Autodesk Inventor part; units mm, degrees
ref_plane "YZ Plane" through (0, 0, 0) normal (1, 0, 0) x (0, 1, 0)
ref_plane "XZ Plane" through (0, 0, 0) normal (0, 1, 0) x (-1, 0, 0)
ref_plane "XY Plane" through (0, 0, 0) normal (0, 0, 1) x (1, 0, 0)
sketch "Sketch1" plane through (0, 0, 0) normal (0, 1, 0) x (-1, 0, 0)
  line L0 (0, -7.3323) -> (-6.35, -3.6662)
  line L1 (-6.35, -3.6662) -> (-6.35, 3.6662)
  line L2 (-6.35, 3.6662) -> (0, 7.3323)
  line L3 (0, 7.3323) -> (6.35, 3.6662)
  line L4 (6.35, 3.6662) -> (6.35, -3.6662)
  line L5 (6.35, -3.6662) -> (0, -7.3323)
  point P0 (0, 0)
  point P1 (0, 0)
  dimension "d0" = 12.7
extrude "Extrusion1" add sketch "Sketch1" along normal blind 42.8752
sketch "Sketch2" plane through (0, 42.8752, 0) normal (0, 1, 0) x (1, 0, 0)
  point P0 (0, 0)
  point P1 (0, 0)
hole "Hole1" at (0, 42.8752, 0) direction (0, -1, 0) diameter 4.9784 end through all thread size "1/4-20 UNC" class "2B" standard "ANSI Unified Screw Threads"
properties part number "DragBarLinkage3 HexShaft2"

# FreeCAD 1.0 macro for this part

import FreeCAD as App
import Part
import Sketcher
Q = App.Units.Quantity


def add_polygon(sketch, points):
    """Adds a closed chain of lines whose ends are joined by coincident constraints."""
    first, n = sketch.GeometryCount, len(points)
    for a, b in zip(points, points[1:] + points[:1]):
        sketch.addGeometry(Part.LineSegment(App.Vector(*a, 0), App.Vector(*b, 0)), False)
    for i in range(n):
        sketch.addConstraint(Sketcher.Constraint("Coincident", first + i, 2, first + (i + 1) % n, 1))

doc = App.newDocument("Part")
body = doc.addObject("PartDesign::Body", "Body")

# Sketch on XZ plane
sketch1 = body.newObject("Sketcher::SketchObject", "Sketch")
sketch1.AttachmentSupport = (doc.getObject("XZ_Plane"), [""])
sketch1.MapMode = "FlatFace"
add_polygon(sketch1, [(6.35, -3.6662), (0, -7.3323), (-6.35, -3.6662), (-6.35, 3.6662), (0, 7.3323), (6.35, 3.6662)])  # lines 0-5
sketch1.addConstraint([
    Sketcher.Constraint("Vertical", 2),
    Sketcher.Constraint("Vertical", 5),
    Sketcher.Constraint("Symmetric", 0, 2, 3, 2, -1, 1),
    Sketcher.Constraint("Symmetric", 1, 2, 4, 2, -1, 1),
    Sketcher.Constraint("PointOnObject", 0, 2, -2),
    Sketcher.Constraint("Parallel", 0, 3),
    Sketcher.Constraint("Horizontal", 2, 2, 4, 2),
    Sketcher.Constraint("DistanceX", 2, 2, 4, 2, Q("0.5 in")),
    Sketcher.Constraint("Angle", 0, Q("-150.0005 deg")),
    Sketcher.Constraint("DistanceY", 0, 2, 2, 2, Q("0.433 in")),
])
pad1 = body.newObject("PartDesign::Pad", "Pad")
pad1.Profile = sketch1
pad1.Length = Q("1.688 in")
pad1.Reversed = True

# Sketch on XZ plane
sketch2 = body.newObject("Sketcher::SketchObject", "Sketch001")
sketch2.AttachmentSupport = (doc.getObject("XZ_Plane"), [""])
sketch2.MapMode = "FlatFace"
sketch2.AttachmentOffset = App.Placement(App.Vector(0, 0, -1.688 * 25.4), App.Rotation())
sketch2.addGeometry(Part.Circle(App.Vector(0, 0, 0), App.Vector(0, 0, 1), 2.4892), False)
sketch2.addConstraint([
    Sketcher.Constraint("Coincident", 0, 3, -1, 1),
    Sketcher.Constraint("Diameter", 0, Q("0.196 in")),
])
doc.recompute()
hole = body.newObject("PartDesign::Hole", "Hole")
hole.Profile = sketch2
hole.ThreadType = "None"
hole.Diameter = Q("0.196 in")
hole.DepthType = "ThroughAll"
hole.Reversed = True

doc.recompute()
